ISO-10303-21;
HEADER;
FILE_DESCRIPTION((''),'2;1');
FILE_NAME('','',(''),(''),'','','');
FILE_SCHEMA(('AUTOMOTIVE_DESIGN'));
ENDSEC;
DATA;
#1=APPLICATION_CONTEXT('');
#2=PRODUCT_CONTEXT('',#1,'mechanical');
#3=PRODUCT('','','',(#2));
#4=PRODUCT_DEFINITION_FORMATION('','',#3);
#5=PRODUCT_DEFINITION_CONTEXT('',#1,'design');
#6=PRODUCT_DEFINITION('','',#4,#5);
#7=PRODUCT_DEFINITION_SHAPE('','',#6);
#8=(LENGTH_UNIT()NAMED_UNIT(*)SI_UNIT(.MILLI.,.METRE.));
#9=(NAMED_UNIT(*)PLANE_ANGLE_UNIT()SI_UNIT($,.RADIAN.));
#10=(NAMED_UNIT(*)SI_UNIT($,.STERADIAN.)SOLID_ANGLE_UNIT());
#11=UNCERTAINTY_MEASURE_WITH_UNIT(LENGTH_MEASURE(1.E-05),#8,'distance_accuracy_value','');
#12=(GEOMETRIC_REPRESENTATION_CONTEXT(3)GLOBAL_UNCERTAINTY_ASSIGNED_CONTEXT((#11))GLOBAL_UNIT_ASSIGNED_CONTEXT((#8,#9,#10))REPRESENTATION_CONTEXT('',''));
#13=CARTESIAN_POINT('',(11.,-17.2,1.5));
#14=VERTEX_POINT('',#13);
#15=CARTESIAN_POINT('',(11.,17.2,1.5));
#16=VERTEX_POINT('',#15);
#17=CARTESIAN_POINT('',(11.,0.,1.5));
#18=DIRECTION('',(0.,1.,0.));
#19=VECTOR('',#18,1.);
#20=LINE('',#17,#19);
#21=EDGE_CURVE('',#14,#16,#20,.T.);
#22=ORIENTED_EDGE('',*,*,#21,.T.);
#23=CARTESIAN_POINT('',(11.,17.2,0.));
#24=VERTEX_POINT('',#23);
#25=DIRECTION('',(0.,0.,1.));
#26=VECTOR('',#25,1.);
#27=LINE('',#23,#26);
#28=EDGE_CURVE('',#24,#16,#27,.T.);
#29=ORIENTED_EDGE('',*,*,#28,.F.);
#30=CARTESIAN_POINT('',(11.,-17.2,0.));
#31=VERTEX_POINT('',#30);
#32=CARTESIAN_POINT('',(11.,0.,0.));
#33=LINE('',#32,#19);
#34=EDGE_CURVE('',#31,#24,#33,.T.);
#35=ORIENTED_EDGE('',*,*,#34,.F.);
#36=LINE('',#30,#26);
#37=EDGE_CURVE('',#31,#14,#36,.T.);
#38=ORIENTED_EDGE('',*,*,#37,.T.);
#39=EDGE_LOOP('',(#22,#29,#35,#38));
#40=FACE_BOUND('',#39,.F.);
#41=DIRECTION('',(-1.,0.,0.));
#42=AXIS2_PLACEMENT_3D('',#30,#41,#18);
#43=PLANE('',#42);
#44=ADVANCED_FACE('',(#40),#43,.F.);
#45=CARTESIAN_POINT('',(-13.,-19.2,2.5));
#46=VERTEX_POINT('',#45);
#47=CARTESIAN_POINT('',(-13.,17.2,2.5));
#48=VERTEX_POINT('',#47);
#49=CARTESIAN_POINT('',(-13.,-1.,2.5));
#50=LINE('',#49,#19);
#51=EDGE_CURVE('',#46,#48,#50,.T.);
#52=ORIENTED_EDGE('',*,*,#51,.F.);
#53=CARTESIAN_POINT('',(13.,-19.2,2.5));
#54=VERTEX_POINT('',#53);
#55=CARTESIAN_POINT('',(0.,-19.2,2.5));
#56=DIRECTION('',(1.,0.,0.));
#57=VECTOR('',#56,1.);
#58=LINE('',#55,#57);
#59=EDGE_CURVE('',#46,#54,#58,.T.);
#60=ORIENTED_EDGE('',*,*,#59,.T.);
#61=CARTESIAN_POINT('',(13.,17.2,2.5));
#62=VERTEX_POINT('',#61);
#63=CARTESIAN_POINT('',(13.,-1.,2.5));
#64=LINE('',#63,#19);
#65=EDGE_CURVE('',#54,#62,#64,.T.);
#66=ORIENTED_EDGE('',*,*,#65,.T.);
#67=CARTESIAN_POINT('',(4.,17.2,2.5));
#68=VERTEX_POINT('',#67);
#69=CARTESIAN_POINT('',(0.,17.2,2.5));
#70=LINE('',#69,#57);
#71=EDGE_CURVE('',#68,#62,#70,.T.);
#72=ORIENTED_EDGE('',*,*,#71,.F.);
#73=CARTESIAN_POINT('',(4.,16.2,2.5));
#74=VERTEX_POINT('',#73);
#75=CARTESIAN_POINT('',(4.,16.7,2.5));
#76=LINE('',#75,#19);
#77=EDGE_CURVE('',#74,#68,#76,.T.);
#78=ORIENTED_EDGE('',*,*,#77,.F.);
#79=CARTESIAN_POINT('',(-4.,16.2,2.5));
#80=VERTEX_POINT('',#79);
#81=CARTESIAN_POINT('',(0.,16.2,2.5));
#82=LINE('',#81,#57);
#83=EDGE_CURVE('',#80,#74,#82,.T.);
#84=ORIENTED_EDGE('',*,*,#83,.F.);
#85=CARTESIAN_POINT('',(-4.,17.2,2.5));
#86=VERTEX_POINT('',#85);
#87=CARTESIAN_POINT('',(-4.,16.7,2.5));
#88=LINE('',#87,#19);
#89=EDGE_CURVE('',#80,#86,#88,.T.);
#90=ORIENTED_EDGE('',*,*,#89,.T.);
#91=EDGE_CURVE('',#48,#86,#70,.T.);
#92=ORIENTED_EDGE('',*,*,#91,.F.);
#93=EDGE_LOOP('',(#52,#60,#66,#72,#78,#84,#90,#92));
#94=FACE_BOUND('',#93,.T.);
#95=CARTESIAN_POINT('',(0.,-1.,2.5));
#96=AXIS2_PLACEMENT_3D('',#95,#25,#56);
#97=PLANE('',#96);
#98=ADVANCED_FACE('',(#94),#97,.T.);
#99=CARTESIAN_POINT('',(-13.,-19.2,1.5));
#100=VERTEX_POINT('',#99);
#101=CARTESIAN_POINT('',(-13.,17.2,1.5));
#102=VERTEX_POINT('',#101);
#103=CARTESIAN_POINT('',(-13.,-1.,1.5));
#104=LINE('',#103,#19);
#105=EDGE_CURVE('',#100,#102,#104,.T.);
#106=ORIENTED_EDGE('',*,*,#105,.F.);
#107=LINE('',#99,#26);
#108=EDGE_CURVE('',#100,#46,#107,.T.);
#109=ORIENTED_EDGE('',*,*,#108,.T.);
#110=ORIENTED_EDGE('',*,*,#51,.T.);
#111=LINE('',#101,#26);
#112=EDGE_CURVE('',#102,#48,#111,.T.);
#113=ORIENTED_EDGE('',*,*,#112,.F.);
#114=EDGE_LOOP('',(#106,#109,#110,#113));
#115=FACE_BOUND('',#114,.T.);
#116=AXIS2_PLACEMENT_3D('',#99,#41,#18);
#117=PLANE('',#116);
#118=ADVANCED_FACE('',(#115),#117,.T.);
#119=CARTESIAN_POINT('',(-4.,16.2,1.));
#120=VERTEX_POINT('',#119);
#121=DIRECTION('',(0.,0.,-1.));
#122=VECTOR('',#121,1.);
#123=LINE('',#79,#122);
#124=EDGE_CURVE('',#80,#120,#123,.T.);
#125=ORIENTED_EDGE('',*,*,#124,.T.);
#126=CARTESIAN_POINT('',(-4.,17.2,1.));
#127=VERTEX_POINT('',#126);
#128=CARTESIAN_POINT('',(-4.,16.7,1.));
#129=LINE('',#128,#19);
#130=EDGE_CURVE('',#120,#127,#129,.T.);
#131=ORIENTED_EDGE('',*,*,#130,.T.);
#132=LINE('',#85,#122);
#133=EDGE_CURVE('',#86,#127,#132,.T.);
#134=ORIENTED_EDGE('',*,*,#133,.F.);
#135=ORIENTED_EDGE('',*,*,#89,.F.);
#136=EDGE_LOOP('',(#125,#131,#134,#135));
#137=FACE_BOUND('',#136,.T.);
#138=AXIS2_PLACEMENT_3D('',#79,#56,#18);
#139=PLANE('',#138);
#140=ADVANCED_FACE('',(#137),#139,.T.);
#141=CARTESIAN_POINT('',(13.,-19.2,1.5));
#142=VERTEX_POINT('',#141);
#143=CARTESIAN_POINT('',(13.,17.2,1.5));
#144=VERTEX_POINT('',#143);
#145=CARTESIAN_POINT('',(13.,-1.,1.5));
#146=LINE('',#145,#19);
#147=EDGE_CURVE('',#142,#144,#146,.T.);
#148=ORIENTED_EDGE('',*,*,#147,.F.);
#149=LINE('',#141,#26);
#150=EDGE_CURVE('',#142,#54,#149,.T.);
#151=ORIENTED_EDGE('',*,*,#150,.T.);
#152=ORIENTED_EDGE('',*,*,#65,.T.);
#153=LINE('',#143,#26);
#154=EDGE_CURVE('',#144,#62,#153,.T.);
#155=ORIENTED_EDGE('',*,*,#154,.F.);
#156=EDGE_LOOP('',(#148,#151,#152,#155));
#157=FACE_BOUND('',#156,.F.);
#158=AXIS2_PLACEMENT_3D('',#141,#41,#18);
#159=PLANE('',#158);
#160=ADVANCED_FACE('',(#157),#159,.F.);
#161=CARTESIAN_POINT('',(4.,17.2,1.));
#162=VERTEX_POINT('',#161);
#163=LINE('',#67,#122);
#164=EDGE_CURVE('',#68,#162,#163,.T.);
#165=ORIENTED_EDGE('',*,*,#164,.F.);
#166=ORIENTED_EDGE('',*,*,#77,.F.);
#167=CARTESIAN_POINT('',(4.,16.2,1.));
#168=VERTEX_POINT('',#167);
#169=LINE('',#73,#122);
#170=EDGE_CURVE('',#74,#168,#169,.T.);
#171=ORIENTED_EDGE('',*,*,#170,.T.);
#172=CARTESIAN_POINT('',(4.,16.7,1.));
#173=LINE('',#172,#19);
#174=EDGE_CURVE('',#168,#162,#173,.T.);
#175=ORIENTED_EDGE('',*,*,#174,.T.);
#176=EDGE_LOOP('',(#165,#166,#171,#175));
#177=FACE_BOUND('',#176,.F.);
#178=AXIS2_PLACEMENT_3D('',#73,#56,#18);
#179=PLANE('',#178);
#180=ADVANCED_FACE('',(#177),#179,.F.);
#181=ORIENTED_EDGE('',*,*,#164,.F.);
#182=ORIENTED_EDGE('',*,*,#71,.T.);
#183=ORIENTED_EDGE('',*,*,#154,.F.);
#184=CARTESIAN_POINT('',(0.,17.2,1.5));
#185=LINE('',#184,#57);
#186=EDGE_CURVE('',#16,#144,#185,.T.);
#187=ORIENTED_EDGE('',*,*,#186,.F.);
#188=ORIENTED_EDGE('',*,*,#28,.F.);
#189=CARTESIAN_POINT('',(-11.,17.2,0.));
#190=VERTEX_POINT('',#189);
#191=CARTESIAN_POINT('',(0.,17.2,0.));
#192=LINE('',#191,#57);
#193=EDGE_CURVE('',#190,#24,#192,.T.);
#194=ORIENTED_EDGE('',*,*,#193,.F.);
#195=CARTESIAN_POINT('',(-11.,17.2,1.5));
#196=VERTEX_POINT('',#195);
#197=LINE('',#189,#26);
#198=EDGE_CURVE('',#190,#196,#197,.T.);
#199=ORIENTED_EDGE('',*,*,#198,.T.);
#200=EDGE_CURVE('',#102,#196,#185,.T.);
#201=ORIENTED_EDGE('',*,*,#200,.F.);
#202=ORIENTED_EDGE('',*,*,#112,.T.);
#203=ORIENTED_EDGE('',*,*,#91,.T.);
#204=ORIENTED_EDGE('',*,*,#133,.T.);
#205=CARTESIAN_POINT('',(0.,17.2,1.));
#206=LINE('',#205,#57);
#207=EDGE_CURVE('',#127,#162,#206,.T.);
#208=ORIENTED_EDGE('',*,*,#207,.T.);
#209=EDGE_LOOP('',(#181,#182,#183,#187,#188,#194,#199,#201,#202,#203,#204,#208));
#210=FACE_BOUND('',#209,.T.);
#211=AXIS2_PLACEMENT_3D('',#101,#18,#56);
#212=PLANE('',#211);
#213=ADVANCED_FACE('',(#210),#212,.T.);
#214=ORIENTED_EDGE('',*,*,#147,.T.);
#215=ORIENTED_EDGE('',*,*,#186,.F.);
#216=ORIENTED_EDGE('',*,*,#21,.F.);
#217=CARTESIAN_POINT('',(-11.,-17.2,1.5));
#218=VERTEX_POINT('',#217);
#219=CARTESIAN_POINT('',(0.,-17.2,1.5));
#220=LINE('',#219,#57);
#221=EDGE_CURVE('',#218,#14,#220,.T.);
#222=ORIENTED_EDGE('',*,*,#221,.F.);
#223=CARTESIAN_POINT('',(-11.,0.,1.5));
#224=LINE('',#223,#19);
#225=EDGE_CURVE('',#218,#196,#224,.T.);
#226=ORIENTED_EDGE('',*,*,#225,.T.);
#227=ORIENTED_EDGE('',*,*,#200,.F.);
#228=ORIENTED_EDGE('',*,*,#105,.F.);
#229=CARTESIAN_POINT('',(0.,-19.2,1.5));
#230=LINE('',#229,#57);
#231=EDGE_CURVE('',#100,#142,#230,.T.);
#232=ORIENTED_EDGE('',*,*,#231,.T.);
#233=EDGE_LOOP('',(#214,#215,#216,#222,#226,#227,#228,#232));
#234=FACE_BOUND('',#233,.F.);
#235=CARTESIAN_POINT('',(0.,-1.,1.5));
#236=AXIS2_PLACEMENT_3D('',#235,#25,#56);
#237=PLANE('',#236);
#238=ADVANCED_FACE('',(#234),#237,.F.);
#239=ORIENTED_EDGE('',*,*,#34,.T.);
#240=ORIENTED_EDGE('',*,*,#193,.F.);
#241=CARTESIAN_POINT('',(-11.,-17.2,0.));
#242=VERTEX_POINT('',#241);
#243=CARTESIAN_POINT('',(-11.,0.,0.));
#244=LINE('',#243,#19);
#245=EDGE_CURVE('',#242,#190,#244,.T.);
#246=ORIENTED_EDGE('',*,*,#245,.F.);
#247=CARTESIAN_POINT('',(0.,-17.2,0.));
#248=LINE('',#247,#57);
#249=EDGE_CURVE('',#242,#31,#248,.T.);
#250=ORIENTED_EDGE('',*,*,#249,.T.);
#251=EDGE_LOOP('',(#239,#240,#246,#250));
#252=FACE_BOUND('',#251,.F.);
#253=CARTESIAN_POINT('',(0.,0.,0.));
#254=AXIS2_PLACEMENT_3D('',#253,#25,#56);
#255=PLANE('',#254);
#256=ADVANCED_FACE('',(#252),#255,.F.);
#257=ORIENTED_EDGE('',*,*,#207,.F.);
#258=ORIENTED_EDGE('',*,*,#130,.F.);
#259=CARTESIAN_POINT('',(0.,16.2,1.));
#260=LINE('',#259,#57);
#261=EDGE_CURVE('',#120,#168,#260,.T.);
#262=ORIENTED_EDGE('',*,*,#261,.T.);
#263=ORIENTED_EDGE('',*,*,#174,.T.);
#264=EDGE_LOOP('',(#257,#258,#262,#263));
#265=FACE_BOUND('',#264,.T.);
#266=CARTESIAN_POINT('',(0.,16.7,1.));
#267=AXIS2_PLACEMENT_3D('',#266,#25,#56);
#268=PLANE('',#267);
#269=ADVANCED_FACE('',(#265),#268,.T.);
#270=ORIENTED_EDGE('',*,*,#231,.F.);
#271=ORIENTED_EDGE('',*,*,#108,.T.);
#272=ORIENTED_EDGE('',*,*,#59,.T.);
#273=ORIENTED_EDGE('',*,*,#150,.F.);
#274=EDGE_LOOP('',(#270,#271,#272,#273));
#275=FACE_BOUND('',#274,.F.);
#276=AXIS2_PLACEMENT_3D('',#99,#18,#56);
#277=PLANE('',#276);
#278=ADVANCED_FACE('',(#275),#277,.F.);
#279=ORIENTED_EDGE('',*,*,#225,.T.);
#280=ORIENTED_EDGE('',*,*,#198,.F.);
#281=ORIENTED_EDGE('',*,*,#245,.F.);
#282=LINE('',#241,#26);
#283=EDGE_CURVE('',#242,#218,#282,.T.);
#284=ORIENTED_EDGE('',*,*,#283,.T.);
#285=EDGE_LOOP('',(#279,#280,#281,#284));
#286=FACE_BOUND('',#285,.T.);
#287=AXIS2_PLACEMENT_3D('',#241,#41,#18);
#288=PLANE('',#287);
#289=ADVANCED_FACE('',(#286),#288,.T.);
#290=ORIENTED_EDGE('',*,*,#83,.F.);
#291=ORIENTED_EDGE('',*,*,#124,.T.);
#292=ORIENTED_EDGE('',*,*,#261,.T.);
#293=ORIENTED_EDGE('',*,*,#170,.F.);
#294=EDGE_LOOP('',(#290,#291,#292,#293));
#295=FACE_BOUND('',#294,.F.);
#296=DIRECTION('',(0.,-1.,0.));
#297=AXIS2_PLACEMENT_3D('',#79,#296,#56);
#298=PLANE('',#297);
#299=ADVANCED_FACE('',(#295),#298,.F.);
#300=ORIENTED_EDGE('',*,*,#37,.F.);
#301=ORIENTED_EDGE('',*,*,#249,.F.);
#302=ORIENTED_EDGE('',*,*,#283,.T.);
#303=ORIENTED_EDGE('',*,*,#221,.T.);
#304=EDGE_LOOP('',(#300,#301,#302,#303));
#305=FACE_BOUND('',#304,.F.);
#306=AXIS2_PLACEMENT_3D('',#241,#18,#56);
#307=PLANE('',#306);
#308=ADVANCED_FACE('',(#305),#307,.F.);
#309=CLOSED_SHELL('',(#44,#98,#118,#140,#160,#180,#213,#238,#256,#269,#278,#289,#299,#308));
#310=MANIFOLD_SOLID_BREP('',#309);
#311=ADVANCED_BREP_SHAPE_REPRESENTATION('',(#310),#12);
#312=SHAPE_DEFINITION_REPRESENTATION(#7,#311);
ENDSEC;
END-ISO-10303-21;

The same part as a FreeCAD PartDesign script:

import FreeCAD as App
import Part
import Sketcher
Q = App.Units.Quantity

doc = App.newDocument("Part")
body = doc.addObject("PartDesign::Body", "Body")

# Sketch on XY plane
sketch1 = doc.addObject("Sketcher::SketchObject", "Sketch")
body.addObject(sketch1)
sketch1.AttachmentSupport = (doc.XY_Plane, [""])
sketch1.MapMode = "FlatFace"
sketch1.addGeometry(Part.LineSegment(App.Vector(-11, 17, 0), App.Vector(-11, -17, 0)), False)
sketch1.addGeometry(Part.LineSegment(App.Vector(-11, -17, 0), App.Vector(11, -17, 0)), False)
sketch1.addGeometry(Part.LineSegment(App.Vector(11, -17, 0), App.Vector(11, 17, 0)), False)
sketch1.addGeometry(Part.LineSegment(App.Vector(11, 17, 0), App.Vector(-11, 17, 0)), False)
sketch1.addConstraint(Sketcher.Constraint("Coincident", 0, 2, 1, 1))
sketch1.addConstraint(Sketcher.Constraint("Coincident", 1, 2, 2, 1))
sketch1.addConstraint(Sketcher.Constraint("Coincident", 2, 2, 3, 1))
sketch1.addConstraint(Sketcher.Constraint("Coincident", 3, 2, 0, 1))
sketch1.addConstraint(Sketcher.Constraint("Vertical", 0))
sketch1.addConstraint(Sketcher.Constraint("Horizontal", 1))
sketch1.addConstraint(Sketcher.Constraint("Vertical", 2))
sketch1.addConstraint(Sketcher.Constraint("Horizontal", 3))
sketch1.addConstraint(Sketcher.Constraint("Symmetric", 0, 2, 2, 2, -1, 1))
sketch1.addConstraint(Sketcher.Constraint("DistanceX", 1, 1, 1, 2, Q("22 mm")))
sketch1.addConstraint(Sketcher.Constraint("DistanceY", 0, 2, 0, 1, Q("34.4 mm")))
pad1 = doc.addObject("PartDesign::Pad", "Pad")
body.addObject(pad1)
pad1.Profile = sketch1
pad1.Length = 1.5

# Sketch on XY plane
sketch2 = doc.addObject("Sketcher::SketchObject", "Sketch001")
body.addObject(sketch2)
sketch2.AttachmentSupport = (doc.XY_Plane, [""])
sketch2.MapMode = "FlatFace"
sketch2.AttachmentOffset = App.Placement(App.Vector(0, 0, 1.5), App.Rotation())
sketch2.addGeometry(Part.LineSegment(App.Vector(-13, 17, 0), App.Vector(-13, -19, 0)), False)
sketch2.addGeometry(Part.LineSegment(App.Vector(-13, -19, 0), App.Vector(13, -19, 0)), False)
sketch2.addGeometry(Part.LineSegment(App.Vector(13, -19, 0), App.Vector(13, 17, 0)), False)
sketch2.addGeometry(Part.LineSegment(App.Vector(13, 17, 0), App.Vector(-13, 17, 0)), False)
sketch2.addConstraint(Sketcher.Constraint("Coincident", 0, 2, 1, 1))
sketch2.addConstraint(Sketcher.Constraint("Coincident", 1, 2, 2, 1))
sketch2.addConstraint(Sketcher.Constraint("Coincident", 2, 2, 3, 1))
sketch2.addConstraint(Sketcher.Constraint("Coincident", 3, 2, 0, 1))
sketch2.addConstraint(Sketcher.Constraint("Vertical", 0))
sketch2.addConstraint(Sketcher.Constraint("Horizontal", 1))
sketch2.addConstraint(Sketcher.Constraint("Vertical", 2))
sketch2.addConstraint(Sketcher.Constraint("Horizontal", 3))
sketch2.addConstraint(Sketcher.Constraint("DistanceX", 1, 1, 1, 2, Q("26 mm")))
sketch2.addConstraint(Sketcher.Constraint("DistanceY", 0, 2, 0, 1, Q("36.4 mm")))
sketch2.addConstraint(Sketcher.Constraint("DistanceX", 0, 2, -1, 1, Q("13 mm")))
sketch2.addConstraint(Sketcher.Constraint("DistanceY", 0, 2, -1, 1, Q("19.2 mm")))
pad2 = doc.addObject("PartDesign::Pad", "Pad001")
body.addObject(pad2)
pad2.Profile = sketch2
pad2.Length = 1

# Sketch on XY plane
sketch3 = doc.addObject("Sketcher::SketchObject", "Sketch002")
body.addObject(sketch3)
sketch3.AttachmentSupport = (doc.XY_Plane, [""])
sketch3.MapMode = "FlatFace"
sketch3.AttachmentOffset = App.Placement(App.Vector(0, 0, 2.5), App.Rotation())
sketch3.addGeometry(Part.LineSegment(App.Vector(-4, 17.2, 0), App.Vector(-4, 16.2, 0)), False)
sketch3.addGeometry(Part.LineSegment(App.Vector(-4, 16.2, 0), App.Vector(4, 16.2, 0)), False)
sketch3.addGeometry(Part.LineSegment(App.Vector(4, 16.2, 0), App.Vector(4, 17.2, 0)), False)
sketch3.addGeometry(Part.LineSegment(App.Vector(4, 17.2, 0), App.Vector(-4, 17.2, 0)), False)
sketch3.addConstraint(Sketcher.Constraint("Coincident", 0, 2, 1, 1))
sketch3.addConstraint(Sketcher.Constraint("Coincident", 1, 2, 2, 1))
sketch3.addConstraint(Sketcher.Constraint("Coincident", 2, 2, 3, 1))
sketch3.addConstraint(Sketcher.Constraint("Coincident", 3, 2, 0, 1))
sketch3.addConstraint(Sketcher.Constraint("Vertical", 0))
sketch3.addConstraint(Sketcher.Constraint("Horizontal", 1))
sketch3.addConstraint(Sketcher.Constraint("Vertical", 2))
sketch3.addConstraint(Sketcher.Constraint("Horizontal", 3))
sketch3.addConstraint(Sketcher.Constraint("DistanceX", 1, 1, 1, 2, Q("8 mm")))
sketch3.addConstraint(Sketcher.Constraint("DistanceY", 0, 2, 0, 1, Q("1 mm")))
sketch3.addConstraint(Sketcher.Constraint("DistanceX", 0, 2, -1, 1, Q("4 mm")))
sketch3.addConstraint(Sketcher.Constraint("DistanceY", -1, 1, 0, 2, Q("16.2 mm")))
pocket1 = doc.addObject("PartDesign::Pocket", "Pocket")
body.addObject(pocket1)
pocket1.Profile = sketch3
pocket1.Length = 1.5

doc.recompute()
